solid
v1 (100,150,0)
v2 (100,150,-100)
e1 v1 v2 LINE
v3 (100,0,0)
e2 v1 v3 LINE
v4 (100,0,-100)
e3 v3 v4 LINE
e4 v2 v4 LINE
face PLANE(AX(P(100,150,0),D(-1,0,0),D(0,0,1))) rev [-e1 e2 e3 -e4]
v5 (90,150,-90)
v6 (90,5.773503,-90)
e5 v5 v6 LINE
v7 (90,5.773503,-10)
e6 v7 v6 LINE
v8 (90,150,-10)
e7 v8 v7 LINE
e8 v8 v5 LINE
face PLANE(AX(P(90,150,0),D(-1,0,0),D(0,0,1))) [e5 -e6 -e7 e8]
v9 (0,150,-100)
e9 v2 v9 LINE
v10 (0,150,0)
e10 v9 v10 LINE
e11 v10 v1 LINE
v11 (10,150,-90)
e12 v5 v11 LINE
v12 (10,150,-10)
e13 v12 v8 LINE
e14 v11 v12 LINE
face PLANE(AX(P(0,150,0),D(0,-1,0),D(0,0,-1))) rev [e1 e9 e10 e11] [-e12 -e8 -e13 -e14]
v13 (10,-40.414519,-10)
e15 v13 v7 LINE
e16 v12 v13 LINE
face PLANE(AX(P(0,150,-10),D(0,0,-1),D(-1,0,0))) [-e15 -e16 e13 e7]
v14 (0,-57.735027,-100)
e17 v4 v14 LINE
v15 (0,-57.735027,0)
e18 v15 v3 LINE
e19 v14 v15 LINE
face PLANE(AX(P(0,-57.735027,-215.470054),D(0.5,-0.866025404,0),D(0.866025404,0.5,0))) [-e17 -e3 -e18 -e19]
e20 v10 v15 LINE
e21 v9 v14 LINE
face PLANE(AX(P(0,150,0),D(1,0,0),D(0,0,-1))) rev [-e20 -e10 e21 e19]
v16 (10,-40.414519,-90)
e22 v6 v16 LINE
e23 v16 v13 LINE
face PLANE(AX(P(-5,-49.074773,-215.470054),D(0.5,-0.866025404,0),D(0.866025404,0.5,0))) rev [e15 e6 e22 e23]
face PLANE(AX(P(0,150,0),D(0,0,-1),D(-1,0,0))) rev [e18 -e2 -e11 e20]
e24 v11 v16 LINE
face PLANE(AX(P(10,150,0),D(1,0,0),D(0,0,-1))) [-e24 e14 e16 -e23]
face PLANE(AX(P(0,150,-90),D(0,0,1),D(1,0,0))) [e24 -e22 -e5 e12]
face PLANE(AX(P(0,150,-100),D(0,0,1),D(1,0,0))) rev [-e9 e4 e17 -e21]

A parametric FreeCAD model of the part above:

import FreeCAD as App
import Part
import Sketcher
from FreeCAD import Vector
Q = App.Units.Quantity


def faces_at(feature, points):
    """Names of the faces that lie closest to the given points."""
    faces = feature.Shape.Faces
    near = lambda p: min(range(len(faces)), key=lambda i: faces[i].distToShape(Part.Vertex(*p))[0])
    return sorted({f"Face{near(p) + 1}" for p in points})


def add_polygon(sketch, points):
    """Adds a closed chain of lines whose ends are joined by coincident constraints."""
    first, n = sketch.GeometryCount, len(points)
    for a, b in zip(points, points[1:] + points[:1]):
        sketch.addGeometry(Part.LineSegment(App.Vector(*a, 0), App.Vector(*b, 0)), False)
    for i in range(n):
        sketch.addConstraint(Sketcher.Constraint("Coincident", first + i, 2, first + (i + 1) % n, 1))

doc = App.newDocument("Part")
body = doc.addObject("PartDesign::Body", "Body")

# Sketch on XZ plane
sketch1 = body.newObject("Sketcher::SketchObject", "Sketch")
sketch1.AttachmentSupport = (doc.getObject("XZ_Plane"), [""])
sketch1.MapMode = "FlatFace"
add_polygon(sketch1, [(0, -100), (0, 0), (100, 0), (100, -100)])  # lines 0-3
sketch1.addConstraint([
    Sketcher.Constraint("Vertical", 0),
    Sketcher.Constraint("Horizontal", 1),
    Sketcher.Constraint("Vertical", 2),
    Sketcher.Constraint("Horizontal", 3),
    Sketcher.Constraint("Coincident", 0, 2, -1, 1),
    Sketcher.Constraint("Equal", 3, 0),
    Sketcher.Constraint("DistanceX", 1, 1, 1, 2, Q("100 mm")),
])
pad1 = body.newObject("PartDesign::Pad", "Pad")
pad1.Profile = sketch1
pad1.Length = 150
pad1.Reversed = True

# Sketch on XY plane
sketch2 = body.newObject("Sketcher::SketchObject", "Sketch001")
sketch2.AttachmentSupport = (doc.getObject("XY_Plane"), [""])
sketch2.MapMode = "FlatFace"
add_polygon(sketch2, [(0, 0), (0, -57.735027), (100, 0)])  # lines 0-2
sketch2.addConstraint([
    Sketcher.Constraint("Vertical", 0),
    Sketcher.Constraint("Horizontal", 2),
    Sketcher.Constraint("Coincident", 2, 2, -1, 1),
    Sketcher.Constraint("DistanceX", 2, 2, 2, 1, Q("100 mm")),
    Sketcher.Constraint("Angle", 1, Q("30 deg")),
])
pad2 = body.newObject("PartDesign::Pad", "Pad001")
pad2.Profile = sketch2
pad2.Length = 100
pad2.Reversed = True
doc.recompute()

thickness = body.newObject("PartDesign::Thickness", "Thickness")
thickness.Base = (pad2, faces_at(pad2, [(50, 150, -50)]))
thickness.Value = 10
thickness.Reversed = True
thickness.Join = "Intersection"

doc.recompute()
